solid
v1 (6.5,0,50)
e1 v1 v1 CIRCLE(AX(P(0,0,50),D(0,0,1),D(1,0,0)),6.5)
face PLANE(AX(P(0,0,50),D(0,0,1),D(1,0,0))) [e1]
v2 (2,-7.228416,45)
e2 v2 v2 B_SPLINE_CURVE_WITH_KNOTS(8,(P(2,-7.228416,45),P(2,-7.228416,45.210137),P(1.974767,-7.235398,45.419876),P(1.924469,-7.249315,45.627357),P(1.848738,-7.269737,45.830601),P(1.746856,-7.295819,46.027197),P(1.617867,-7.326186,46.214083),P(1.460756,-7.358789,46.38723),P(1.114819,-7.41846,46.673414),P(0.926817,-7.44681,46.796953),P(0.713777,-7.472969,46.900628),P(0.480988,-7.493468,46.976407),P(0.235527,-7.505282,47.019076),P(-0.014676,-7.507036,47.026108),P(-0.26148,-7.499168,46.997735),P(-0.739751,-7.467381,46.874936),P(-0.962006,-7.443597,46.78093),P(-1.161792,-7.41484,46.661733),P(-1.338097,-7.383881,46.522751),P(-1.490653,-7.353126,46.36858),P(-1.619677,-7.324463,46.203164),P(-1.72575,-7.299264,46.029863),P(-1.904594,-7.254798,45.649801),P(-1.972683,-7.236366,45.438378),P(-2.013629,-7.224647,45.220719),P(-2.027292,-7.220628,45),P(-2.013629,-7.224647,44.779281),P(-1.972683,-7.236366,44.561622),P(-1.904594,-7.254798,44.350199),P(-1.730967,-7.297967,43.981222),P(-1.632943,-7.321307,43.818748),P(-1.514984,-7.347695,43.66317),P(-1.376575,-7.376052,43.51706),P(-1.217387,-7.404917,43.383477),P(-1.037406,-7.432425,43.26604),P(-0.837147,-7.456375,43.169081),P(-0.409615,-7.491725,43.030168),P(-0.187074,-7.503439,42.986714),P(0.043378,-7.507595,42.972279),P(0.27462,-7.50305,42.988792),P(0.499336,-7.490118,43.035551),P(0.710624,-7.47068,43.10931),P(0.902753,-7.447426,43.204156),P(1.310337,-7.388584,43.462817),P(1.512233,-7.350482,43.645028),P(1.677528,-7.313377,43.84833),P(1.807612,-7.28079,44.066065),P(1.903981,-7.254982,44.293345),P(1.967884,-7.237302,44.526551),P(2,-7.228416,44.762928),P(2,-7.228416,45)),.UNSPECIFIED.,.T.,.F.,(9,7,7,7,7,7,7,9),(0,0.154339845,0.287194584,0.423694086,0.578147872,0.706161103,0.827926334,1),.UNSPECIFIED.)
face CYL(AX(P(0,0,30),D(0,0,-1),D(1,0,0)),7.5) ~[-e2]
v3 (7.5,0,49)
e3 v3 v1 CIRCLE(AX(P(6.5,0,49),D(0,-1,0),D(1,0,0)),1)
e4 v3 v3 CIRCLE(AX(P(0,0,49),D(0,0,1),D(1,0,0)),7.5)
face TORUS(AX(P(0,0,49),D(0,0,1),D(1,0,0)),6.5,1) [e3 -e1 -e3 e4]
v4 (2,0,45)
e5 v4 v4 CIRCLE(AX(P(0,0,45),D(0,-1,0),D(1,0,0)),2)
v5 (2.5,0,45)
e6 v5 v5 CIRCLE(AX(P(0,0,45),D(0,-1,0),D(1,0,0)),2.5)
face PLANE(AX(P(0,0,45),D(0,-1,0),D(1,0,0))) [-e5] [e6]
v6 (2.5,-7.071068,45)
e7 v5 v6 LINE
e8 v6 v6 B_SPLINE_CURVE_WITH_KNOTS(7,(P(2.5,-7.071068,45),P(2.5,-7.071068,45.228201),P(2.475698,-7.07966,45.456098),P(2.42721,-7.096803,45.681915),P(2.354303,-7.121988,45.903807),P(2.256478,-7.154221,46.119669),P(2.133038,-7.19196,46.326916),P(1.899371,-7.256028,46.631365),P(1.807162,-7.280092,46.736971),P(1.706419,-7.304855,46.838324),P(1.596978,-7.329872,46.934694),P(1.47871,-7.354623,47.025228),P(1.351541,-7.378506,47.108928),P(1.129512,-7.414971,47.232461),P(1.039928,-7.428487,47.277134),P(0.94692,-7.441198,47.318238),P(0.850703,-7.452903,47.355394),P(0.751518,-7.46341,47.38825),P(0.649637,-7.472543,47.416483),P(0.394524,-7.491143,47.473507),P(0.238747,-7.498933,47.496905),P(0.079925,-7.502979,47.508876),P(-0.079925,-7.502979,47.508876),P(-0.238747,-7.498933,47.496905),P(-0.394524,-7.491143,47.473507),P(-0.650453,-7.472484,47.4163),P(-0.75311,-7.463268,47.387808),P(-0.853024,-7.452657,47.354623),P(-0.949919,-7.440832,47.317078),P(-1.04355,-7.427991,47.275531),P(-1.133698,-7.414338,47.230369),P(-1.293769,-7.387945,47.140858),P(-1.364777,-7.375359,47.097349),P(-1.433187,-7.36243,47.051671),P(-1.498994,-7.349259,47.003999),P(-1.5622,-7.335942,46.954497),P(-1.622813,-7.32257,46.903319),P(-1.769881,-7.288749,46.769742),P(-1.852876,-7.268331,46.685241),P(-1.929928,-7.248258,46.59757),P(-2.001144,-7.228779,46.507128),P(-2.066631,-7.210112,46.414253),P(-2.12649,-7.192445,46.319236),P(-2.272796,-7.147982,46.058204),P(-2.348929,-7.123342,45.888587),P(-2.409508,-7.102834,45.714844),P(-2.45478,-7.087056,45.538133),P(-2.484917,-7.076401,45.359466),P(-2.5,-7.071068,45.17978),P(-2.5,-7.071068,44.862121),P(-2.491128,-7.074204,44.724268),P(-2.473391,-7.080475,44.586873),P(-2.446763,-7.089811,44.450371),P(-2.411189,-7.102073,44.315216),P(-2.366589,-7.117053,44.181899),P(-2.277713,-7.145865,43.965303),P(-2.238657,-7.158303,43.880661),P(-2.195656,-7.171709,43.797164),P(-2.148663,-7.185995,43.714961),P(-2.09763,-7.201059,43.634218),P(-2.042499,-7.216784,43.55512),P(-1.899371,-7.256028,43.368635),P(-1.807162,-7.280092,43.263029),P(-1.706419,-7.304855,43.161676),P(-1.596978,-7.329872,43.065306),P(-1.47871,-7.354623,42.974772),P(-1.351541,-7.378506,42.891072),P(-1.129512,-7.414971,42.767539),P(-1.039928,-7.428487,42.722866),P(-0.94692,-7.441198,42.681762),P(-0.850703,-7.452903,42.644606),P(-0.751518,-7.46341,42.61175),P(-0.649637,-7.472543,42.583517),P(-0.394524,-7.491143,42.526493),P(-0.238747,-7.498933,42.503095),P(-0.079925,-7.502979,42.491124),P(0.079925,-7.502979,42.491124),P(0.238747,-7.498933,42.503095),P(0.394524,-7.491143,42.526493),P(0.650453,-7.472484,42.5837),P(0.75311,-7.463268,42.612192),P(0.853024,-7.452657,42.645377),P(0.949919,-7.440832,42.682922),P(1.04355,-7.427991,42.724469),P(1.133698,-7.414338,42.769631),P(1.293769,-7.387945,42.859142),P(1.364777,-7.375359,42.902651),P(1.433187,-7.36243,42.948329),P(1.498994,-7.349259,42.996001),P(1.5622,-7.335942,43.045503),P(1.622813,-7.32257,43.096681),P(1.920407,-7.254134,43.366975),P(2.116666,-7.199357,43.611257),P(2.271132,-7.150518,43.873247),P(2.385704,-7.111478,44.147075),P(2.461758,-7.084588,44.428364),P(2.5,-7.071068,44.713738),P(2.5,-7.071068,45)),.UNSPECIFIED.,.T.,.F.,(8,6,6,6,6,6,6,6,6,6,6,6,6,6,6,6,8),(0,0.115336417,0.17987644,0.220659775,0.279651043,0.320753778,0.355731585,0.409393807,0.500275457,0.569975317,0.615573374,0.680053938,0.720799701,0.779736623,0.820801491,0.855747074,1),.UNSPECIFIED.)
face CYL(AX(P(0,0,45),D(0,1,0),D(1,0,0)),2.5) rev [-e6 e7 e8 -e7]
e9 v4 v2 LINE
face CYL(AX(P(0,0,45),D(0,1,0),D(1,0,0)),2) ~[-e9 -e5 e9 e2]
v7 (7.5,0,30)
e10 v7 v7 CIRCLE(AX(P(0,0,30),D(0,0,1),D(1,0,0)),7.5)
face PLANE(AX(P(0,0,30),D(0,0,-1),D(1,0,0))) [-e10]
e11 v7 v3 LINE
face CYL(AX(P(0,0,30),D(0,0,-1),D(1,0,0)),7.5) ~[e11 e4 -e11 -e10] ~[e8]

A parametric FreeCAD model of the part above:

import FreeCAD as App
import Part
import Sketcher

V = App.Vector


def edges_at(feature, points):
    """Names of the edges that pass closest to the given points."""
    edges = feature.Shape.Edges
    near = lambda p: min(range(len(edges)), key=lambda i: edges[i].distToShape(Part.Vertex(*p))[0])
    return sorted({f"Edge{near(p) + 1}" for p in points})

doc = App.newDocument("Part")
body = doc.addObject("PartDesign::Body", "Body")

# Sketch on XY plane
sketch1 = body.newObject("Sketcher::SketchObject", "Sketch")
sketch1.AttachmentSupport = (doc.getObject("XY_Plane"), [""])
sketch1.MapMode = "FlatFace"
sketch1.addGeometry(Part.Circle(V(0, 0, 0), V(0, 0, 1), 12), False)
sketch1.addConstraint([
    Sketcher.Constraint("Coincident", 0, 3, -1, 1),
    Sketcher.Constraint("Diameter", 0, 25.0),
])
pad1 = body.newObject("PartDesign::Pad", "Pad")
pad1.Profile = sketch1
pad1.Length = 20

# Sketch on XY plane
sketch2 = body.newObject("Sketcher::SketchObject", "Sketch001")
sketch2.AttachmentSupport = (doc.getObject("XY_Plane"), [""])
sketch2.MapMode = "FlatFace"
sketch2.AttachmentOffset = App.Placement(V(0, 0, 20), App.Rotation())
sketch2.addGeometry(Part.Circle(V(0, 0, 0), V(0, 0, 1), 9), False)
sketch2.addConstraint([
    Sketcher.Constraint("Coincident", 0, 3, -1, 1),
    Sketcher.Constraint("Diameter", 0, 18.0),
])
pad2 = body.newObject("PartDesign::Pad", "Pad001")
pad2.Profile = sketch2
pad2.Length = 10

# Sketch on XY plane
sketch3 = body.newObject("Sketcher::SketchObject", "Sketch002")
sketch3.AttachmentSupport = (doc.getObject("XY_Plane"), [""])
sketch3.MapMode = "FlatFace"
sketch3.AttachmentOffset = App.Placement(V(0, 0, 30), App.Rotation())
sketch3.addGeometry(Part.Circle(V(0, 0, 0), V(0, 0, 1), 8), False)
sketch3.addConstraint([
    Sketcher.Constraint("Coincident", 0, 3, -1, 1),
    Sketcher.Constraint("Diameter", 0, 15.0),
])
pad3 = body.newObject("PartDesign::Pad", "Pad002")
pad3.Profile = sketch3
pad3.Length = 20
doc.recompute()

fillet = body.newObject("PartDesign::Fillet", "Fillet")
fillet.Base = (pad3, edges_at(pad3, [(-12.5, 0, 20)]))
fillet.Radius = 2
doc.recompute()

chamfer = body.newObject("PartDesign::Chamfer", "Chamfer")
chamfer.Base = (fillet, edges_at(fillet, [(-9, 0, 30)]))
chamfer.Size = 1
doc.recompute()

fillet2 = body.newObject("PartDesign::Fillet", "Fillet001")
fillet2.Base = (chamfer, edges_at(chamfer, [(-7.5, 0, 50)]))
fillet2.Radius = 1

# Sketch on XZ plane
sketch4 = body.newObject("Sketcher::SketchObject", "Sketch003")
sketch4.AttachmentSupport = (doc.getObject("XZ_Plane"), [""])
sketch4.MapMode = "FlatFace"
sketch4.addGeometry([
    Part.Circle(V(0, 45, 0), V(0, 0, 1), 2.5),
    Part.Circle(V(0, 45, 0), V(0, 0, 1), 2),
], False)
sketch4.addConstraint([
    Sketcher.Constraint("Coincident", 1, 3, 0, 3),
    Sketcher.Constraint("PointOnObject", 0, 3, -2),
    Sketcher.Constraint("Diameter", 0, 5.0),
    Sketcher.Constraint("Diameter", 1, 4.0),
    Sketcher.Constraint("DistanceY", -1, 1, 0, 3, 45.0),
])
pocket1 = body.newObject("PartDesign::Pocket", "Pocket")
pocket1.Profile = sketch4
pocket1.Length = 25
pocket1.Reversed = True

# Sketch on XY plane
sketch5 = body.newObject("Sketcher::SketchObject", "Sketch004")
sketch5.AttachmentSupport = (doc.getObject("XY_Plane"), [""])
sketch5.MapMode = "FlatFace"
sketch5.addGeometry([
    Part.Circle(V(0, 0, 0), V(0, 0, 1), 3.5),
    Part.Circle(V(0, 0, 0), V(0, 0, 1), 2.5),
], False)
sketch5.addConstraint([
    Sketcher.Constraint("Coincident", 0, 3, -1, 1),
    Sketcher.Constraint("Coincident", 1, 3, -1, 1),
    Sketcher.Constraint("Diameter", 0, 7.0),
    Sketcher.Constraint("Diameter", 1, 5.0),
])
pad4 = body.newObject("PartDesign::Pad", "Pad003")
pad4.Profile = sketch5
pad4.Length = 50
pad4.Reversed = True

# Sketch on XY plane
sketch6 = body.newObject("Sketcher::SketchObject", "Sketch005")
sketch6.AttachmentSupport = (doc.getObject("XY_Plane"), [""])
sketch6.MapMode = "FlatFace"
sketch6.AttachmentOffset = App.Placement(V(0, 0, -50), App.Rotation())
sketch6.addGeometry(Part.Circle(V(0, 0, 0), V(0, 0, 1), 35), False)
sketch6.addConstraint([
    Sketcher.Constraint("Coincident", 0, 3, -1, 1),
    Sketcher.Constraint("Diameter", 0, 69.626584),
])
pocket2 = body.newObject("PartDesign::Pocket", "Pocket001")
pocket2.Profile = sketch6
pocket2.Length = 80
pocket2.Reversed = True

doc.recompute()
